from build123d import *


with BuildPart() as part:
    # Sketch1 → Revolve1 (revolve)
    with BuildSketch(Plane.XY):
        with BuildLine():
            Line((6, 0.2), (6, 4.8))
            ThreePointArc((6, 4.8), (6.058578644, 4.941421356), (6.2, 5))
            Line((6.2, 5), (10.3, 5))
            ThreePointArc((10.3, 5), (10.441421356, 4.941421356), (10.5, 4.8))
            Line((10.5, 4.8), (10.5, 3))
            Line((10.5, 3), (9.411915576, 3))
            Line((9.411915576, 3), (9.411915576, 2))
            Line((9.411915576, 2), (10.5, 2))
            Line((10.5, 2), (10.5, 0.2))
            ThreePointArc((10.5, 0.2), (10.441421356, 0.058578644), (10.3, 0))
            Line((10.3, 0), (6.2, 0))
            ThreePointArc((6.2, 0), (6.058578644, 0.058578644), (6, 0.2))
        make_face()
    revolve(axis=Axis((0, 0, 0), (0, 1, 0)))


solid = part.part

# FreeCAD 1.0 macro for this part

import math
import FreeCAD as App
import Part
import Sketcher
from FreeCAD import Vector
Q = App.Units.Quantity

doc = App.newDocument("Part")
params = doc.addObject("Spreadsheet::Sheet", "Params")
for row, (alias, value) in enumerate([
    ("sketch1_radius", "0.2 mm"),
    ("sketch1_height", "1 mm"),
    ("sketch1_width", "4.1 mm"),
    ("sketch1_height2", "4.6 mm"),
    ("revolution_angle", "360 deg"),
], start=1):
    params.set(f"A{row}", alias)
    params.set(f"B{row}", "=" + value)
    params.setAlias(f"B{row}", alias)

body = doc.addObject("PartDesign::Body", "Body")

# Sketch on XY plane
sketch1 = body.newObject("Sketcher::SketchObject", "Sketch")
sketch1.AttachmentSupport = (doc.getObject("XY_Plane"), [""])
sketch1.MapMode = "FlatFace"
sketch1.addGeometry([
    Part.LineSegment(Vector(6, 4.8, 0), Vector(6, 0.2, 0)),  # 0
    Part.ArcOfCircle(Part.Circle(Vector(6.2, 0.2, 0), Vector(0, 0, 1), 0.2), math.radians(-180), math.radians(-90)),  # 1
    Part.LineSegment(Vector(6.2, 0, 0), Vector(10.3, 0, 0)),  # 2
    Part.ArcOfCircle(Part.Circle(Vector(10.3, 0.2, 0), Vector(0, 0, 1), 0.2), math.radians(-90), math.radians(0)),  # 3
    Part.LineSegment(Vector(10.5, 0.2, 0), Vector(10.5, 2, 0)),  # 4
    Part.LineSegment(Vector(10.5, 2, 0), Vector(9.41, 2, 0)),  # 5
    Part.LineSegment(Vector(9.41, 2, 0), Vector(9.41, 3, 0)),  # 6
    Part.LineSegment(Vector(9.41, 3, 0), Vector(10.5, 3, 0)),  # 7
    Part.LineSegment(Vector(10.5, 3, 0), Vector(10.5, 4.8, 0)),  # 8
    Part.ArcOfCircle(Part.Circle(Vector(10.3, 4.8, 0), Vector(0, 0, 1), 0.2), math.radians(0), math.radians(90)),  # 9
    Part.LineSegment(Vector(10.3, 5, 0), Vector(6.2, 5, 0)),  # 10
    Part.ArcOfCircle(Part.Circle(Vector(6.2, 4.8, 0), Vector(0, 0, 1), 0.2), math.radians(90), math.radians(180)),  # 11
], False)
sketch1.addConstraint([
    Sketcher.Constraint("Tangent", 0, 2, 1, 1),
    Sketcher.Constraint("Tangent", 1, 2, 2, 1),
    Sketcher.Constraint("Tangent", 2, 2, 3, 1),
    Sketcher.Constraint("Tangent", 3, 2, 4, 1),
    Sketcher.Constraint("Coincident", 4, 2, 5, 1),
    Sketcher.Constraint("Coincident", 5, 2, 6, 1),
    Sketcher.Constraint("Coincident", 6, 2, 7, 1),
    Sketcher.Constraint("Coincident", 7, 2, 8, 1),
    Sketcher.Constraint("Tangent", 8, 2, 9, 1),
    Sketcher.Constraint("Tangent", 9, 2, 10, 1),
    Sketcher.Constraint("Tangent", 10, 2, 11, 1),
    Sketcher.Constraint("Tangent", 11, 2, 0, 1),
    Sketcher.Constraint("Vertical", 0),
    Sketcher.Constraint("Horizontal", 2),
    Sketcher.Constraint("Vertical", 4),
    Sketcher.Constraint("Horizontal", 5),
    Sketcher.Constraint("Vertical", 6),
    Sketcher.Constraint("Horizontal", 7),
    Sketcher.Constraint("Vertical", 8),
    Sketcher.Constraint("Horizontal", 10),
    Sketcher.Constraint("Equal", 1, 3),
    Sketcher.Constraint("Equal", 3, 9),
    Sketcher.Constraint("Equal", 9, 11),
    Sketcher.Constraint("PointOnObject", 1, 2, -1),
    Sketcher.Constraint("Vertical", 3, 3, 9, 3),
    Sketcher.Constraint("Equal", 4, 8),
    Sketcher.Constraint("Radius", 1, Q("0.2 mm")),
    Sketcher.Constraint("DistanceY", 6, 1, 6, 2, Q("1 mm")),
    Sketcher.Constraint("DistanceX", 2, 1, 2, 2, Q("4.1 mm")),
    Sketcher.Constraint("DistanceY", 0, 2, 0, 1, Q("4.6 mm")),
    Sketcher.Constraint("DistanceX", -1, 1, 0, 2, Q("6 mm")),
    Sketcher.Constraint("DistanceX", 5, 2, 5, 1, Q("1.088084 mm")),
])
sketch1.setExpression("Constraints[26]", "Params.sketch1_radius")
sketch1.setExpression("Constraints[27]", "Params.sketch1_height")
sketch1.setExpression("Constraints[28]", "Params.sketch1_width")
sketch1.setExpression("Constraints[29]", "Params.sketch1_height2")
revolution = body.newObject("PartDesign::Revolution", "Revolution")
revolution.Profile = sketch1
revolution.ReferenceAxis = (sketch1, ["V_Axis"])
revolution.setExpression("Angle", "Params.revolution_angle")

doc.recompute()
